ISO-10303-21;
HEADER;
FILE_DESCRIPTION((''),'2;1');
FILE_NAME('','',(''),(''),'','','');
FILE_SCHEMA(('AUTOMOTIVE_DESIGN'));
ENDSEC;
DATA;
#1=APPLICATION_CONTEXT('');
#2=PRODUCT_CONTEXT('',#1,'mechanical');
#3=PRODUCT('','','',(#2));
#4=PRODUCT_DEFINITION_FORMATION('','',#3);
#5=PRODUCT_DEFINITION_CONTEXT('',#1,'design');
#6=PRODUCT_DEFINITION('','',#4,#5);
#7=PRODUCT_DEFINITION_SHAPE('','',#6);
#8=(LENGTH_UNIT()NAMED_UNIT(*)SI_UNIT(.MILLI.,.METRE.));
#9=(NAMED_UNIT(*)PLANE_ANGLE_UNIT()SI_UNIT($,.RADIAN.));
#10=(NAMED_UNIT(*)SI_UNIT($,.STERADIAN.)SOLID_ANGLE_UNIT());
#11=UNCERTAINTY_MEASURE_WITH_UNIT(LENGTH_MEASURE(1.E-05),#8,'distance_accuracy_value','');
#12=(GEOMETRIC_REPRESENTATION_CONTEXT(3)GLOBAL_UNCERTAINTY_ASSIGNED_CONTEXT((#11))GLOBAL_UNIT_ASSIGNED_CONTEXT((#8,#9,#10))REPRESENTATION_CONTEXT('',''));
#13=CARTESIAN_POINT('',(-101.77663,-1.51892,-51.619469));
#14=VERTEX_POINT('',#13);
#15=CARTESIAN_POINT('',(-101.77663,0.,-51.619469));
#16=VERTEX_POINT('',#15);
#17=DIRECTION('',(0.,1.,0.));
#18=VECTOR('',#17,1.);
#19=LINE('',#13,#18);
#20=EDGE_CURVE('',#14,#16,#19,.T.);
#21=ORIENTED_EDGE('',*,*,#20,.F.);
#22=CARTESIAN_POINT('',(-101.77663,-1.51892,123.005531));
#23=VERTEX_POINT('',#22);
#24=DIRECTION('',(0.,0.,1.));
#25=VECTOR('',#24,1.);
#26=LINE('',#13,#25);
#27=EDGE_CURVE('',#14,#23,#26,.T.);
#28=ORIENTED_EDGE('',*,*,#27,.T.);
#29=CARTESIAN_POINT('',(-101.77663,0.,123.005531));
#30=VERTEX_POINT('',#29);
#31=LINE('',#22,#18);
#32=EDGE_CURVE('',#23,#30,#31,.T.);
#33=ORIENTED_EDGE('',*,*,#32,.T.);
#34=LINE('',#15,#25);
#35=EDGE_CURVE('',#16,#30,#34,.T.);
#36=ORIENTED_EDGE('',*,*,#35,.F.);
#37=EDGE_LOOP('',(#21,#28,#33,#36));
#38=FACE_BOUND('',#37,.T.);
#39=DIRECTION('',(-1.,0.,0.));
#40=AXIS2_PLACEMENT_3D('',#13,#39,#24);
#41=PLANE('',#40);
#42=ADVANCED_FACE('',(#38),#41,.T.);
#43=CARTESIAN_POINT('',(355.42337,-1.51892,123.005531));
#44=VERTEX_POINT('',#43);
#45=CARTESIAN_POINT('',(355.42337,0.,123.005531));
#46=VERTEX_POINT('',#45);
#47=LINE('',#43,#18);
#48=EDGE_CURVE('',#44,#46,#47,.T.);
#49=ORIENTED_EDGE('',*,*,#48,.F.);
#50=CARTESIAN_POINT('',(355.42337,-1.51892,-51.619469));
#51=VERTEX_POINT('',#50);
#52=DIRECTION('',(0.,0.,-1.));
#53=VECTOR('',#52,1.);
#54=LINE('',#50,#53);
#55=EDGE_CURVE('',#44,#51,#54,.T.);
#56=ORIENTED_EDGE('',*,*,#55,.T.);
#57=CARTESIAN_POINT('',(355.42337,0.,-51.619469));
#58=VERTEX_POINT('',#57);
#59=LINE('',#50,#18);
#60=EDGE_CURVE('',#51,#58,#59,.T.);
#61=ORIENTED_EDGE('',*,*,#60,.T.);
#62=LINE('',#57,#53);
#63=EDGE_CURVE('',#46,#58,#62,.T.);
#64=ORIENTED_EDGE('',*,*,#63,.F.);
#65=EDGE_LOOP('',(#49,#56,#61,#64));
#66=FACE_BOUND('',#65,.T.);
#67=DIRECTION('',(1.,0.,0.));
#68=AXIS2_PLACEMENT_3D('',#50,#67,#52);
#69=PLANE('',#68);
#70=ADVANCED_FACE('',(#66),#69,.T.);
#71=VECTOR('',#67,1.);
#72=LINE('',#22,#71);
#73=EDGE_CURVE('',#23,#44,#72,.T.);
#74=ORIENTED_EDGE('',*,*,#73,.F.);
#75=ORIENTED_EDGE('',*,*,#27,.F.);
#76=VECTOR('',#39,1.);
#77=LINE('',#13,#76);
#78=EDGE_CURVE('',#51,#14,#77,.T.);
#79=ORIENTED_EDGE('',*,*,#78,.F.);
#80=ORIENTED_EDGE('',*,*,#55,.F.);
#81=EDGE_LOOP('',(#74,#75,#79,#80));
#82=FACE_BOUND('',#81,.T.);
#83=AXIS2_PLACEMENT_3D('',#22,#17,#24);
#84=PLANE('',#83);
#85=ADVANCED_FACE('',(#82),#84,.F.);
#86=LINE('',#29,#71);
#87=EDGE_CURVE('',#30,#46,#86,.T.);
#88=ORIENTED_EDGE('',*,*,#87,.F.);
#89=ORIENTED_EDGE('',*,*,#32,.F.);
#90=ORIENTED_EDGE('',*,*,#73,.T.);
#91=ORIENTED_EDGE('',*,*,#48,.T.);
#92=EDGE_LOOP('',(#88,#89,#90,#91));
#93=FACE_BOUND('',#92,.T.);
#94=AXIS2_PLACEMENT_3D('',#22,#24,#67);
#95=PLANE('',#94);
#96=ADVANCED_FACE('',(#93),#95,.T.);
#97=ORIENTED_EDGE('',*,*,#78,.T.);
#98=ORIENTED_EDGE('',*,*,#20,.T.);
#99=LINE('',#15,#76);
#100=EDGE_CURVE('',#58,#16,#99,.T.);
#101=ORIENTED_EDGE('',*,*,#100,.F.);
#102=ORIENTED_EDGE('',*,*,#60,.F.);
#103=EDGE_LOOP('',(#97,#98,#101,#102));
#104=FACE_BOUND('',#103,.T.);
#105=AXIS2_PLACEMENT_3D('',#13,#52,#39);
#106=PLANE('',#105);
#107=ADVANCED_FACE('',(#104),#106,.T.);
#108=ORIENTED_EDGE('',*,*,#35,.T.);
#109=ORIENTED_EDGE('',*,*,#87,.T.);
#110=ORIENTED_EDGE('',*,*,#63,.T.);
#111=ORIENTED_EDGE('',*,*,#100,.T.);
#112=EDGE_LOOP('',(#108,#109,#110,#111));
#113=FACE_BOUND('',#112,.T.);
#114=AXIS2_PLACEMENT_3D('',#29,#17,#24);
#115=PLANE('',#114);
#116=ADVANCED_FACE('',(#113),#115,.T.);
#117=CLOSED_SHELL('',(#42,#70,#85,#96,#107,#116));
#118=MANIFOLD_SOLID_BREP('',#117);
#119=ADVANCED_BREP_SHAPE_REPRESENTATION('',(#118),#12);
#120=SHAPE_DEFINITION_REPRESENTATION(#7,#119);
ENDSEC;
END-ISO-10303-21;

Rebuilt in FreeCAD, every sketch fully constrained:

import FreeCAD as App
import Part
import Sketcher
Q = App.Units.Quantity


def add_polygon(sketch, points):
    """Adds a closed chain of lines whose ends are joined by coincident constraints."""
    first, n = sketch.GeometryCount, len(points)
    for a, b in zip(points, points[1:] + points[:1]):
        sketch.addGeometry(Part.LineSegment(App.Vector(*a, 0), App.Vector(*b, 0)), False)
    for i in range(n):
        sketch.addConstraint(Sketcher.Constraint("Coincident", first + i, 2, first + (i + 1) % n, 1))

doc = App.newDocument("Part")
body = doc.addObject("PartDesign::Body", "Body")

# Sketch on XZ plane
sketch1 = doc.addObject("Sketcher::SketchObject", "Sketch")
body.addObject(sketch1)
sketch1.AttachmentSupport = (doc.XZ_Plane, [""])
sketch1.MapMode = "FlatFace"
add_polygon(sketch1, [(-102, -52), (-102, 123), (355, 123), (355, -52)])  # lines 0-3
sketch1.addConstraint([
    Sketcher.Constraint("Vertical", 0),
    Sketcher.Constraint("Horizontal", 1),
    Sketcher.Constraint("Vertical", 2),
    Sketcher.Constraint("Horizontal", 3),
    Sketcher.Constraint("DistanceX", 1, 1, 1, 2, Q("18 in")),
    Sketcher.Constraint("DistanceY", 0, 1, 0, 2, Q("6.875 in")),
    Sketcher.Constraint("DistanceX", 0, 2, -1, 1, Q("101.77663 mm")),
    Sketcher.Constraint("DistanceY", -1, 1, 0, 2, Q("123.005531 mm")),
])
pad1 = doc.addObject("PartDesign::Pad", "Pad")
body.addObject(pad1)
pad1.Profile = sketch1
pad1.Length = Q("0.0598 in")

doc.recompute()
